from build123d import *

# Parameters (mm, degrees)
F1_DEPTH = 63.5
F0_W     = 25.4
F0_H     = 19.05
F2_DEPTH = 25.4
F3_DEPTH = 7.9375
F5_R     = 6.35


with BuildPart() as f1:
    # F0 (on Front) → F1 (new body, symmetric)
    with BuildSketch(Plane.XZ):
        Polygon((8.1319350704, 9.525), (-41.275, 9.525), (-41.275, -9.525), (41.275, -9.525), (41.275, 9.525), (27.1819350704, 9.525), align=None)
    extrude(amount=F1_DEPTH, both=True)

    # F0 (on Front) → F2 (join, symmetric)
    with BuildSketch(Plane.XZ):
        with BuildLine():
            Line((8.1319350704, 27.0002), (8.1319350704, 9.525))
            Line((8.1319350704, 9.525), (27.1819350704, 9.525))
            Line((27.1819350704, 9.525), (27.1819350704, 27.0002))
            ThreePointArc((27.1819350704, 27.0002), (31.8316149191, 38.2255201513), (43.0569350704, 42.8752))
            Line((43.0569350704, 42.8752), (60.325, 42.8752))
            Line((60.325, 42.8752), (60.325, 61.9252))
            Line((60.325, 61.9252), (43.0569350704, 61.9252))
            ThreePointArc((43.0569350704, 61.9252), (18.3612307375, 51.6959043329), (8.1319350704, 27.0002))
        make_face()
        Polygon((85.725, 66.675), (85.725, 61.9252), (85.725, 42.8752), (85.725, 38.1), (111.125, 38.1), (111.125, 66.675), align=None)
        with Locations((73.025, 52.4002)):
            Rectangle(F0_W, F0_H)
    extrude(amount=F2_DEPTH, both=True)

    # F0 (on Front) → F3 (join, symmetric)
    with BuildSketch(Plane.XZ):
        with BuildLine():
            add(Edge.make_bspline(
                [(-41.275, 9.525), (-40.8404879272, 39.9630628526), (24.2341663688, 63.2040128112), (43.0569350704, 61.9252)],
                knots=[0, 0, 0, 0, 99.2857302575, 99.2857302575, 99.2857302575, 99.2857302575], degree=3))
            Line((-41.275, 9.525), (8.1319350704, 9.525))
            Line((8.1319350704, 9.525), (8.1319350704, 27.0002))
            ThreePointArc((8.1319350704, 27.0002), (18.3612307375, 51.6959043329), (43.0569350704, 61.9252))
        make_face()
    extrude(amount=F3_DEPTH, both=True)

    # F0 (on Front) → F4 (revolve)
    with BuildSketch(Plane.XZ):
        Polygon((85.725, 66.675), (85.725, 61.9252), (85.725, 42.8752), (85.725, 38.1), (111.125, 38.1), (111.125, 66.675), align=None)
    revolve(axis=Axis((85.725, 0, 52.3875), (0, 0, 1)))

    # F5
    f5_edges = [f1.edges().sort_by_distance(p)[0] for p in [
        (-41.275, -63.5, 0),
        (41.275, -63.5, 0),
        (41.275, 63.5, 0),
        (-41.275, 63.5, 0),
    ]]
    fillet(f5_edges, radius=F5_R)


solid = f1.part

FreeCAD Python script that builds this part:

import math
import FreeCAD as App
import Part
import Sketcher

V = App.Vector
Q = App.Units.Quantity


def edges_at(feature, points):
    """Names of the edges that pass closest to the given points."""
    edges = feature.Shape.Edges
    near = lambda p: min(range(len(edges)), key=lambda i: edges[i].distToShape(Part.Vertex(*p))[0])
    return sorted({f"Edge{near(p) + 1}" for p in points})


def add_polygon(sketch, points):
    """Adds a closed chain of lines whose ends are joined by coincident constraints."""
    first, n = sketch.GeometryCount, len(points)
    for a, b in zip(points, points[1:] + points[:1]):
        sketch.addGeometry(Part.LineSegment(App.Vector(*a, 0), App.Vector(*b, 0)), False)
    for i in range(n):
        sketch.addConstraint(Sketcher.Constraint("Coincident", first + i, 2, first + (i + 1) % n, 1))

doc = App.newDocument("Part")
body = doc.addObject("PartDesign::Body", "Body")

sketch1 = body.newObject("Sketcher::SketchObject", "Sketch")
sketch1.AttachmentSupport = (doc.getObject("XZ_Plane"), [""])
sketch1.MapMode = "FlatFace"
add_polygon(sketch1, [(-41, 10), (-41, -10), (41, -10), (41, 10)])
sketch1.addConstraint([
    Sketcher.Constraint("Vertical", 0),
    Sketcher.Constraint("Horizontal", 1),
    Sketcher.Constraint("Vertical", 2),
    Sketcher.Constraint("Horizontal", 3),
    Sketcher.Constraint("Symmetric", 0, 2, 2, 2, -1, 1),
    Sketcher.Constraint("DistanceX", 1, 1, 1, 2, Q("3.25 in")),
    Sketcher.Constraint("DistanceY", 0, 2, 0, 1, Q("0.75 in")),
])
pad1 = body.newObject("PartDesign::Pad", "Pad")
pad1.Profile = sketch1
pad1.Length = Q("5 in")
pad1.Midplane = True

sketch2 = body.newObject("Sketcher::SketchObject", "Sketch001")
sketch2.AttachmentSupport = (doc.getObject("XZ_Plane"), [""])
sketch2.MapMode = "FlatFace"
sketch2.addGeometry([
    Part.LineSegment(V(8.1, 27, 0), V(8.1, 9.5, 0)),
    Part.LineSegment(V(8.1, 9.5, 0), V(27.2, 9.5, 0)),
    Part.LineSegment(V(27.2, 9.5, 0), V(27.2, 27, 0)),
    Part.ArcOfCircle(Part.Circle(V(43.1, 27, 0), V(0, 0, 1), 15.9), math.radians(90), math.radians(180)),
    Part.LineSegment(V(43.1, 42.9, 0), V(85.7, 42.9, 0)),
    Part.LineSegment(V(85.7, 42.9, 0), V(85.7, 38.1, 0)),
    Part.LineSegment(V(85.7, 38.1, 0), V(111.1, 38.1, 0)),
    Part.LineSegment(V(111.1, 38.1, 0), V(111.1, 66.7, 0)),
    Part.LineSegment(V(111.1, 66.7, 0), V(85.7, 66.7, 0)),
    Part.LineSegment(V(85.7, 66.7, 0), V(85.7, 61.9, 0)),
    Part.LineSegment(V(85.7, 61.9, 0), V(43.1, 61.9, 0)),
    Part.ArcOfCircle(Part.Circle(V(43.1, 27, 0), V(0, 0, 1), 34.9), math.radians(90), math.radians(180)),
], False)
sketch2.addConstraint([
    Sketcher.Constraint("Coincident", 0, 2, 1, 1),
    Sketcher.Constraint("Coincident", 1, 2, 2, 1),
    Sketcher.Constraint("Tangent", 2, 2, 3, 2),
    Sketcher.Constraint("Tangent", 3, 1, 4, 1),
    Sketcher.Constraint("Coincident", 4, 2, 5, 1),
    Sketcher.Constraint("Coincident", 5, 2, 6, 1),
    Sketcher.Constraint("Coincident", 6, 2, 7, 1),
    Sketcher.Constraint("Coincident", 7, 2, 8, 1),
    Sketcher.Constraint("Coincident", 8, 2, 9, 1),
    Sketcher.Constraint("Coincident", 9, 2, 10, 1),
    Sketcher.Constraint("Tangent", 10, 2, 11, 1),
    Sketcher.Constraint("Tangent", 11, 2, 0, 1),
    Sketcher.Constraint("Vertical", 0),
    Sketcher.Constraint("Horizontal", 1),
    Sketcher.Constraint("Vertical", 2),
    Sketcher.Constraint("Horizontal", 4),
    Sketcher.Constraint("Vertical", 5),
    Sketcher.Constraint("Horizontal", 6),
    Sketcher.Constraint("Vertical", 7),
    Sketcher.Constraint("Horizontal", 8),
    Sketcher.Constraint("Vertical", 9),
    Sketcher.Constraint("Horizontal", 10),
    Sketcher.Constraint("Coincident", 11, 3, 3, 3),
    Sketcher.Constraint("Vertical", 5, 2, 8, 2),
    Sketcher.Constraint("DistanceX", 6, 1, 6, 2, Q("1 in")),
    Sketcher.Constraint("Radius", 3, Q("0.625 in")),
    Sketcher.Constraint("Radius", 11, Q("1.375 in")),
    Sketcher.Constraint("DistanceY", -1, 1, 5, 2, Q("1.5 in")),
    Sketcher.Constraint("DistanceY", 0, 2, 0, 1, Q("0.688 in")),
    Sketcher.Constraint("DistanceY", 5, 2, 5, 1, Q("0.188 in")),
    Sketcher.Constraint("DistanceY", 7, 1, 7, 2, Q("1.125 in")),
    Sketcher.Constraint("DistanceX", -1, 1, 4, 2, Q("3.375 in")),
    Sketcher.Constraint("DistanceX", 4, 1, 4, 2, 42.668065),
])
pad2 = body.newObject("PartDesign::Pad", "Pad001")
pad2.Profile = sketch2
pad2.Length = Q("2 in")
pad2.Midplane = True

sketch3 = body.newObject("Sketcher::SketchObject", "Sketch002")
sketch3.AttachmentSupport = (doc.getObject("XZ_Plane"), [""])
sketch3.MapMode = "FlatFace"
sketch3.addGeometry([
    Part.BSplineCurve([V(-41.275, 9.525, 0), V(-40.840488, 39.963063, 0), V(24.234166, 63.204013, 0), V(43.056935, 61.9252, 0)], [4, 4], [0, 99.285730258], False, 3, [1, 1, 1, 1], False),
    Part.LineSegment(V(-41.275, 9.525, 0), V(8.131935, 9.525, 0)),
    Part.LineSegment(V(8.131935, 9.525, 0), V(8.131935, 27.0002, 0)),
    Part.ArcOfCircle(Part.Circle(V(43.056935, 27.0002, 0), V(0, 0, 1), 34.925), math.radians(90), math.radians(180)),
], False)
sketch3.addConstraint([
    Sketcher.Constraint("Block", 0),
    Sketcher.Constraint("Coincident", 0, 1, 1, 1),
    Sketcher.Constraint("Coincident", 1, 2, 2, 1),
    Sketcher.Constraint("Tangent", 2, 2, 3, 2),
    Sketcher.Constraint("Coincident", 3, 1, 0, 2),
    Sketcher.Constraint("Horizontal", 1),
    Sketcher.Constraint("Vertical", 2),
    Sketcher.Constraint("Radius", 3, Q("1.375 in")),
    Sketcher.Constraint("DistanceX", 2, 2, 3, 1, Q("1.375 in")),
])
pad3 = body.newObject("PartDesign::Pad", "Pad002")
pad3.Profile = sketch3
pad3.Length = Q("0.625 in")
pad3.Midplane = True

sketch4 = body.newObject("Sketcher::SketchObject", "Sketch003")
sketch4.AttachmentSupport = (doc.getObject("XZ_Plane"), [""])
sketch4.MapMode = "FlatFace"
add_polygon(sketch4, [(86, 67), (86, 38), (111, 38), (111, 67)])
sketch4.addGeometry(Part.LineSegment(V(86, 38, 0), V(86, 67, 0)), True)
sketch4.addConstraint([
    Sketcher.Constraint("Vertical", 0),
    Sketcher.Constraint("Horizontal", 1),
    Sketcher.Constraint("Vertical", 2),
    Sketcher.Constraint("Horizontal", 3),
    Sketcher.Constraint("Vertical", 4),
    Sketcher.Constraint("Coincident", 4, 1, 0, 2),
    Sketcher.Constraint("Horizontal", 2, 2, 4, 2),
    Sketcher.Constraint("DistanceX", 1, 1, 1, 2, Q("1 in")),
    Sketcher.Constraint("DistanceY", -1, 1, 0, 2, Q("1.5 in")),
    Sketcher.Constraint("DistanceY", 0, 2, 0, 1, Q("1.125 in")),
    Sketcher.Constraint("DistanceX", -1, 1, 0, 2, Q("3.375 in")),
])
revolution = body.newObject("PartDesign::Revolution", "Revolution")
revolution.Profile = sketch4
revolution.ReferenceAxis = (sketch4, ["Axis0"])
revolution.Angle = 360
doc.recompute()

fillet = body.newObject("PartDesign::Fillet", "Fillet")
fillet.Base = (revolution, edges_at(revolution, [
    (-41.275, -63.5, 0),
    (41.275, -63.5, 0),
    (41.275, 63.5, 0),
    (-41.275, 63.5, 0),
]))
fillet.Radius = Q("0.25 in")

doc.recompute()
